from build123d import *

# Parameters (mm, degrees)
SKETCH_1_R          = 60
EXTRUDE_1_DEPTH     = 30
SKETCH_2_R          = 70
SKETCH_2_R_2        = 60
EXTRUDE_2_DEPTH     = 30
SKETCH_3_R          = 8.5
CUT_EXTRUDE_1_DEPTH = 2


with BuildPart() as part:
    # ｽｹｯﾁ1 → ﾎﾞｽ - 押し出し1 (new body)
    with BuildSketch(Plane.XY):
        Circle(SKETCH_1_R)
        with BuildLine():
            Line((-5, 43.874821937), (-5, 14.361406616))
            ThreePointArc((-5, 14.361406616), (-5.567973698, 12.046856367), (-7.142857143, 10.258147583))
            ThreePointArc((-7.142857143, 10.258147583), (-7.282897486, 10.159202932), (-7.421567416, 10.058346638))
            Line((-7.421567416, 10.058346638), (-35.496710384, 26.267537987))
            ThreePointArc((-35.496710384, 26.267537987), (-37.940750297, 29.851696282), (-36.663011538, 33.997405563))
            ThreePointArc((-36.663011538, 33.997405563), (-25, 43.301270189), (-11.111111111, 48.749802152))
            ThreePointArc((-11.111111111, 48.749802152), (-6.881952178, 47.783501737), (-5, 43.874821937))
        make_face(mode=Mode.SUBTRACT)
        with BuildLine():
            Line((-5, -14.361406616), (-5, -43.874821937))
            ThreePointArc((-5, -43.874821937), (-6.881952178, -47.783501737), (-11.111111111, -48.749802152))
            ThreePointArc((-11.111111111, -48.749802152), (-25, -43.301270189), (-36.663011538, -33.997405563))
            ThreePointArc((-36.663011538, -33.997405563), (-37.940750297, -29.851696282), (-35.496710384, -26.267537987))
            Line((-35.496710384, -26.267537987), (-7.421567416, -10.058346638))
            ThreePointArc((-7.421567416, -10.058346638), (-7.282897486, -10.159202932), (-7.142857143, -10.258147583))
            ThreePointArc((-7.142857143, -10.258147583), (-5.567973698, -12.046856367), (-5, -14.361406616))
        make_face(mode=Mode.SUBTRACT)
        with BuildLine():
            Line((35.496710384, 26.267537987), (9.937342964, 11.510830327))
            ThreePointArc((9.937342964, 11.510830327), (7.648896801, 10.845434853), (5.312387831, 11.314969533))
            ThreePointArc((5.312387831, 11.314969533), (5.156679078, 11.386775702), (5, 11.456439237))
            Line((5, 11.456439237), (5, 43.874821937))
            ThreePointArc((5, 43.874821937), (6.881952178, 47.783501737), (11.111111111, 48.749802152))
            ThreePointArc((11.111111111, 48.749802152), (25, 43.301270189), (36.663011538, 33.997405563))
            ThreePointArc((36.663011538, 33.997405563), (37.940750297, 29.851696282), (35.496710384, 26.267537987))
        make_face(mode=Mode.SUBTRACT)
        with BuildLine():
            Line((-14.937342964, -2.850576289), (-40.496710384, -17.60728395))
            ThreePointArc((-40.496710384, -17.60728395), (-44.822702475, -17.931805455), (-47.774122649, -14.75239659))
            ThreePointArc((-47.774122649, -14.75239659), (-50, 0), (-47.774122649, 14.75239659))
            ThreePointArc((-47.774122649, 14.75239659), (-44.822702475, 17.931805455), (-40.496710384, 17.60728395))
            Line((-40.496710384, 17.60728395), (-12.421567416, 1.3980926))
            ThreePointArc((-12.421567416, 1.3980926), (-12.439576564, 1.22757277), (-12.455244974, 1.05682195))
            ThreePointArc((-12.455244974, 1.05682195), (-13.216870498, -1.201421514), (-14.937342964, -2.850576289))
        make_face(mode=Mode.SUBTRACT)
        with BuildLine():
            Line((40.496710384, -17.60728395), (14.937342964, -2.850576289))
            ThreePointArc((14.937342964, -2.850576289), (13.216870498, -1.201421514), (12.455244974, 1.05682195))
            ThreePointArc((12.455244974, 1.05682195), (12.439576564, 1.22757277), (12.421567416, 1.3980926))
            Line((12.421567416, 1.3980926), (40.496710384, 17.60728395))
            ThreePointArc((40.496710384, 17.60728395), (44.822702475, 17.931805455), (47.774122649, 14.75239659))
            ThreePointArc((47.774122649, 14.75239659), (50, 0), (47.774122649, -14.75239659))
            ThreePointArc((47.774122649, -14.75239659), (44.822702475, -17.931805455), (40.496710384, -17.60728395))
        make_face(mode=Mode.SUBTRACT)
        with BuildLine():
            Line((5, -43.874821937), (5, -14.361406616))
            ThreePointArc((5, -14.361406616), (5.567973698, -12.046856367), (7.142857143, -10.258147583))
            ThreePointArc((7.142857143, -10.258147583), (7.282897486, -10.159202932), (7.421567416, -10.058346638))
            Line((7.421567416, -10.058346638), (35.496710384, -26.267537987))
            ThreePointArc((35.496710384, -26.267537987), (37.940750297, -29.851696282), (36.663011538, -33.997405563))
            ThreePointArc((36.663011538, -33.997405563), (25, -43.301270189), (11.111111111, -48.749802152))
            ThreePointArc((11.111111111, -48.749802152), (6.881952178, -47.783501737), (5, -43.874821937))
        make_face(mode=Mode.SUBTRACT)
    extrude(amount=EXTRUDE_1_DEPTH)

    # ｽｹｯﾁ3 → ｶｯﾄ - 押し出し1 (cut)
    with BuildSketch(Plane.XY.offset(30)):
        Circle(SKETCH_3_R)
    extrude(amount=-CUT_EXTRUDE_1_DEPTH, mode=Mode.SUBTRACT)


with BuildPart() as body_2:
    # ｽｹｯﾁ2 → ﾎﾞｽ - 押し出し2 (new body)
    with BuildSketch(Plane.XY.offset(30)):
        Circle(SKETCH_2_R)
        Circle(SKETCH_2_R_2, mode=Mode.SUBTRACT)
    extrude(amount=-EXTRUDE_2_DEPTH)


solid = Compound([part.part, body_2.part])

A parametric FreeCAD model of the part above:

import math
import FreeCAD as App
import Part
import Sketcher

V = App.Vector
Q = App.Units.Quantity

doc = App.newDocument("Part")
params = doc.addObject("Spreadsheet::Sheet", "Params")
for row, (alias, value) in enumerate([
    ("sketch1_diameter", "120 mm"),
    ("sketch1_radius", "5 mm"),
    ("sketch1_radius2", "50 mm"),
    ("pad1_length", "30 mm"),
    ("sketch2_diameter", "17 mm"),
    ("pocket1_length", "2 mm"),
    ("sketch3_diameter", "140 mm"),
    ("sketch3_diameter2", "120 mm"),
    ("pad2_length", "30 mm"),
], start=1):
    params.set(f"A{row}", alias)
    params.set(f"B{row}", "=" + value)
    params.setAlias(f"B{row}", alias)

body = doc.addObject("PartDesign::Body", "Body")

sketch1 = doc.addObject("Sketcher::SketchObject", "Sketch")
body.addObject(sketch1)
sketch1.AttachmentSupport = (doc.XY_Plane, [""])
sketch1.MapMode = "FlatFace"
sketch1.addGeometry([
    Part.Circle(V(0, 0, 0), V(0, 0, 1), 60),
    Part.ArcOfCircle(Part.Circle(V(-10, -14.36, 0), V(0, 0, 1), 5), math.radians(0), math.radians(55)),
    Part.LineSegment(V(-5, -14.36, 0), V(-5, -43.87, 0)),
    Part.ArcOfCircle(Part.Circle(V(-10, -43.87, 0), V(0, 0, 1), 5), math.radians(-103), math.radians(0)),
    Part.ArcOfCircle(Part.Circle(V(0, 0, 0), V(0, 0, 1), 50), math.radians(-137), math.radians(-103)),
    Part.ArcOfCircle(Part.Circle(V(-33, -30.6, 0), V(0, 0, 1), 5), math.radians(120), math.radians(223)),
    Part.LineSegment(V(-35.5, -26.27, 0), V(-7.42, -10.06, 0)),
    Part.ArcOfCircle(Part.Circle(V(0, 0, 0), V(0, 0, 1), 12.5), math.radians(-126.42), math.radians(-124.85)),
    Part.ArcOfCircle(Part.Circle(V(10, -43.87, 0), V(0, 0, 1), 5), math.radians(180), math.radians(283)),
    Part.LineSegment(V(5, -43.87, 0), V(5, -14.36, 0)),
    Part.ArcOfCircle(Part.Circle(V(10, -14.36, 0), V(0, 0, 1), 5), math.radians(125), math.radians(180)),
    Part.ArcOfCircle(Part.Circle(V(0, 0, 0), V(0, 0, 1), 12.5), math.radians(-55.15), math.radians(-53.58)),
    Part.LineSegment(V(7.42, -10.06, 0), V(35.5, -26.27, 0)),
    Part.ArcOfCircle(Part.Circle(V(33, -30.6, 0), V(0, 0, 1), 5), math.radians(-43), math.radians(60)),
    Part.ArcOfCircle(Part.Circle(V(0, 0, 0), V(0, 0, 1), 50), math.radians(-77), math.radians(-43)),
    Part.ArcOfCircle(Part.Circle(V(-17.44, 1.48, 0), V(0, 0, 1), 5), math.radians(-60), math.radians(-5)),
    Part.LineSegment(V(-14.94, -2.85, 0), V(-40.5, -17.61, 0)),
    Part.ArcOfCircle(Part.Circle(V(-43, -13.28, 0), V(0, 0, 1), 5), math.radians(-163), math.radians(-60)),
    Part.ArcOfCircle(Part.Circle(V(0, 0, 0), V(0, 0, 1), 50), math.radians(163), math.radians(197)),
    Part.ArcOfCircle(Part.Circle(V(-43, 13.28, 0), V(0, 0, 1), 5), math.radians(60), math.radians(163)),
    Part.LineSegment(V(-40.5, 17.61, 0), V(-12.42, 1.4, 0)),
    Part.ArcOfCircle(Part.Circle(V(0, 0, 0), V(0, 0, 1), 12.5), math.radians(173.58), math.radians(175.15)),
    Part.ArcOfCircle(Part.Circle(V(-10, 43.87, 0), V(0, 0, 1), 5), math.radians(0), math.radians(103)),
    Part.LineSegment(V(-5, 43.87, 0), V(-5, 14.36, 0)),
    Part.ArcOfCircle(Part.Circle(V(-10, 14.36, 0), V(0, 0, 1), 5), math.radians(-55), math.radians(0)),
    Part.ArcOfCircle(Part.Circle(V(0, 0, 0), V(0, 0, 1), 12.5), math.radians(124.85), math.radians(126.42)),
    Part.LineSegment(V(-7.42, 10.06, 0), V(-35.5, 26.27, 0)),
    Part.ArcOfCircle(Part.Circle(V(-33, 30.6, 0), V(0, 0, 1), 5), math.radians(137), math.radians(240)),
    Part.ArcOfCircle(Part.Circle(V(0, 0, 0), V(0, 0, 1), 50), math.radians(103), math.radians(137)),
    Part.ArcOfCircle(Part.Circle(V(43, -13.28, 0), V(0, 0, 1), 5), math.radians(-120), math.radians(-17)),
    Part.LineSegment(V(40.5, -17.61, 0), V(14.94, -2.85, 0)),
    Part.ArcOfCircle(Part.Circle(V(17.44, 1.48, 0), V(0, 0, 1), 5), math.radians(-175), math.radians(-120)),
    Part.ArcOfCircle(Part.Circle(V(0, 0, 0), V(0, 0, 1), 12.5), math.radians(4.85), math.radians(6.42)),
    Part.LineSegment(V(12.42, 1.4, 0), V(40.5, 17.61, 0)),
    Part.ArcOfCircle(Part.Circle(V(43, 13.28, 0), V(0, 0, 1), 5), math.radians(17), math.radians(120)),
    Part.ArcOfCircle(Part.Circle(V(0, 0, 0), V(0, 0, 1), 50), math.radians(-17), math.radians(17)),
    Part.ArcOfCircle(Part.Circle(V(33, 30.6, 0), V(0, 0, 1), 5), math.radians(-60), math.radians(43)),
    Part.LineSegment(V(35.5, 26.27, 0), V(9.94, 11.51, 0)),
    Part.ArcOfCircle(Part.Circle(V(7.44, 15.84, 0), V(0, 0, 1), 5), math.radians(-115), math.radians(-60)),
    Part.ArcOfCircle(Part.Circle(V(0, 0, 0), V(0, 0, 1), 12.5), math.radians(64.85), math.radians(66.42)),
    Part.LineSegment(V(5, 11.46, 0), V(5, 43.87, 0)),
    Part.ArcOfCircle(Part.Circle(V(10, 43.87, 0), V(0, 0, 1), 5), math.radians(77), math.radians(180)),
    Part.ArcOfCircle(Part.Circle(V(0, 0, 0), V(0, 0, 1), 50), math.radians(43), math.radians(77)),
], False)
sketch1.addConstraint([
    Sketcher.Constraint("Tangent", 1, 1, 2, 1),
    Sketcher.Constraint("Tangent", 2, 2, 3, 2),
    Sketcher.Constraint("Tangent", 3, 1, 4, 2),
    Sketcher.Constraint("Tangent", 4, 1, 5, 2),
    Sketcher.Constraint("Tangent", 5, 1, 6, 1),
    Sketcher.Constraint("Coincident", 6, 2, 7, 1),
    Sketcher.Constraint("Tangent", 7, 2, 1, 2),
    Sketcher.Constraint("Tangent", 8, 1, 9, 1),
    Sketcher.Constraint("Tangent", 9, 2, 10, 2),
    Sketcher.Constraint("Tangent", 10, 1, 11, 1),
    Sketcher.Constraint("Coincident", 11, 2, 12, 1),
    Sketcher.Constraint("Tangent", 12, 2, 13, 2),
    Sketcher.Constraint("Tangent", 13, 1, 14, 2),
    Sketcher.Constraint("Tangent", 14, 1, 8, 2),
    Sketcher.Constraint("Tangent", 15, 1, 16, 1),
    Sketcher.Constraint("Tangent", 16, 2, 17, 2),
    Sketcher.Constraint("Tangent", 17, 1, 18, 2),
    Sketcher.Constraint("Tangent", 18, 1, 19, 2),
    Sketcher.Constraint("Tangent", 19, 1, 20, 1),
    Sketcher.Constraint("Coincident", 20, 2, 21, 1),
    Sketcher.Constraint("Tangent", 21, 2, 15, 2),
    Sketcher.Constraint("Tangent", 22, 1, 23, 1),
    Sketcher.Constraint("Tangent", 23, 2, 24, 2),
    Sketcher.Constraint("Tangent", 24, 1, 25, 1),
    Sketcher.Constraint("Coincident", 25, 2, 26, 1),
    Sketcher.Constraint("Tangent", 26, 2, 27, 2),
    Sketcher.Constraint("Tangent", 27, 1, 28, 2),
    Sketcher.Constraint("Tangent", 28, 1, 22, 2),
    Sketcher.Constraint("Tangent", 29, 1, 30, 1),
    Sketcher.Constraint("Tangent", 30, 2, 31, 2),
    Sketcher.Constraint("Tangent", 31, 1, 32, 1),
    Sketcher.Constraint("Coincident", 32, 2, 33, 1),
    Sketcher.Constraint("Tangent", 33, 2, 34, 2),
    Sketcher.Constraint("Tangent", 34, 1, 35, 2),
    Sketcher.Constraint("Tangent", 35, 1, 29, 2),
    Sketcher.Constraint("Tangent", 36, 1, 37, 1),
    Sketcher.Constraint("Tangent", 37, 2, 38, 2),
    Sketcher.Constraint("Tangent", 38, 1, 39, 1),
    Sketcher.Constraint("Coincident", 39, 2, 40, 1),
    Sketcher.Constraint("Tangent", 40, 2, 41, 2),
    Sketcher.Constraint("Tangent", 41, 1, 42, 2),
    Sketcher.Constraint("Tangent", 42, 1, 36, 2),
    Sketcher.Constraint("Vertical", 2),
    Sketcher.Constraint("Vertical", 9),
    Sketcher.Constraint("Vertical", 23),
    Sketcher.Constraint("Vertical", 40),
    Sketcher.Constraint("Coincident", 0, 3, -1, 1),
    Sketcher.Constraint("Coincident", 4, 3, -1, 1),
    Sketcher.Constraint("Coincident", 7, 3, -1, 1),
    Sketcher.Constraint("Coincident", 11, 3, -1, 1),
    Sketcher.Constraint("Coincident", 14, 3, -1, 1),
    Sketcher.Constraint("Coincident", 18, 3, -1, 1),
    Sketcher.Constraint("Coincident", 21, 3, -1, 1),
    Sketcher.Constraint("Coincident", 25, 3, -1, 1),
    Sketcher.Constraint("Coincident", 28, 3, -1, 1),
    Sketcher.Constraint("Coincident", 32, 3, -1, 1),
    Sketcher.Constraint("Coincident", 35, 3, -1, 1),
    Sketcher.Constraint("Coincident", 39, 3, -1, 1),
    Sketcher.Constraint("Coincident", 42, 3, -1, 1),
    Sketcher.Constraint("Equal", 1, 3),
    Sketcher.Constraint("Equal", 3, 5),
    Sketcher.Constraint("Equal", 5, 8),
    Sketcher.Constraint("Equal", 8, 10),
    Sketcher.Constraint("Equal", 7, 11),
    Sketcher.Constraint("Equal", 10, 13),
    Sketcher.Constraint("Equal", 4, 14),
    Sketcher.Constraint("Equal", 13, 15),
    Sketcher.Constraint("Equal", 15, 17),
    Sketcher.Constraint("Equal", 14, 18),
    Sketcher.Constraint("Equal", 17, 19),
    Sketcher.Constraint("Equal", 11, 21),
    Sketcher.Constraint("Equal", 19, 22),
    Sketcher.Constraint("Equal", 22, 24),
    Sketcher.Constraint("Equal", 21, 25),
    Sketcher.Constraint("Equal", 24, 27),
    Sketcher.Constraint("Equal", 18, 28),
    Sketcher.Constraint("Equal", 27, 29),
    Sketcher.Constraint("Equal", 29, 31),
    Sketcher.Constraint("Equal", 25, 32),
    Sketcher.Constraint("Equal", 31, 34),
    Sketcher.Constraint("Equal", 28, 35),
    Sketcher.Constraint("Equal", 34, 36),
    Sketcher.Constraint("Equal", 36, 38),
    Sketcher.Constraint("Equal", 32, 39),
    Sketcher.Constraint("Equal", 38, 41),
    Sketcher.Constraint("Equal", 35, 42),
    Sketcher.Constraint("Symmetric", 12, 2, 26, 2, -1, 1),
    Sketcher.Constraint("Symmetric", 19, 1, 29, 1, -1, 1),
    Sketcher.Constraint("Symmetric", 16, 2, 33, 2, -1, 1),
    Sketcher.Constraint("Symmetric", 5, 1, 36, 1, -1, 1),
    Sketcher.Constraint("Symmetric", 5, 1, 12, 2, -2),
    Sketcher.Constraint("Symmetric", 16, 2, 29, 1, -2),
    Sketcher.Constraint("Parallel", 6, 16),
    Sketcher.Constraint("Horizontal", 3, 3, 8, 3),
    Sketcher.Constraint("Horizontal", 22, 3, 41, 3),
    Sketcher.Constraint("Vertical", 3, 3, 22, 3),
    Sketcher.Constraint("Equal", 12, 20),
    Sketcher.Constraint("Diameter", 0, Q("120 mm")),
    Sketcher.Constraint("Radius", 1, Q("5 mm")),
    Sketcher.Constraint("Radius", 4, Q("50 mm")),
    Sketcher.Constraint("Angle", 6, Q("30 deg")),
    Sketcher.Constraint("DistanceX", 1, 3, -1, 1, Q("10 mm")),
    Sketcher.Constraint("Radius", 7, Q("12.499998 mm")),
    Sketcher.Constraint("DistanceX", 5, 3, -1, 1, Q("32.99671 mm")),
])
sketch1.setExpression("Constraints[97]", "Params.sketch1_diameter")
sketch1.setExpression("Constraints[98]", "Params.sketch1_radius")
sketch1.setExpression("Constraints[99]", "Params.sketch1_radius2")
pad1 = doc.addObject("PartDesign::Pad", "Pad")
body.addObject(pad1)
pad1.Profile = sketch1
pad1.setExpression("Length", "Params.pad1_length")

sketch2 = doc.addObject("Sketcher::SketchObject", "Sketch001")
body.addObject(sketch2)
sketch2.AttachmentSupport = (doc.XY_Plane, [""])
sketch2.MapMode = "FlatFace"
sketch2.AttachmentOffset = App.Placement(V(0, 0, 30), App.Rotation())
sketch2.addGeometry(Part.Circle(V(0, 0, 0), V(0, 0, 1), 8), False)
sketch2.addConstraint([
    Sketcher.Constraint("Coincident", 0, 3, -1, 1),
    Sketcher.Constraint("Diameter", 0, Q("17 mm")),
])
sketch2.setExpression("Constraints[1]", "Params.sketch2_diameter")
pocket1 = doc.addObject("PartDesign::Pocket", "Pocket")
body.addObject(pocket1)
pocket1.Profile = sketch2
pocket1.setExpression("Length", "Params.pocket1_length")
body2 = doc.addObject("PartDesign::Body", "Body001")

sketch3 = doc.addObject("Sketcher::SketchObject", "Sketch002")
body2.addObject(sketch3)
sketch3.AttachmentSupport = (doc.getObject("XY_Plane001"), [""])
sketch3.MapMode = "FlatFace"
sketch3.AttachmentOffset = App.Placement(V(0, 0, 30), App.Rotation())
sketch3.addGeometry([
    Part.Circle(V(0, 0, 0), V(0, 0, 1), 70),
    Part.Circle(V(0, 0, 0), V(0, 0, 1), 60),
], False)
sketch3.addConstraint([
    Sketcher.Constraint("Coincident", 0, 3, -1, 1),
    Sketcher.Constraint("Coincident", 1, 3, -1, 1),
    Sketcher.Constraint("Diameter", 0, Q("140 mm")),
    Sketcher.Constraint("Diameter", 1, Q("120 mm")),
])
sketch3.setExpression("Constraints[2]", "Params.sketch3_diameter")
sketch3.setExpression("Constraints[3]", "Params.sketch3_diameter2")
pad2 = doc.addObject("PartDesign::Pad", "Pad001")
body2.addObject(pad2)
pad2.Profile = sketch3
pad2.setExpression("Length", "Params.pad2_length")
pad2.Reversed = True

doc.recompute()
